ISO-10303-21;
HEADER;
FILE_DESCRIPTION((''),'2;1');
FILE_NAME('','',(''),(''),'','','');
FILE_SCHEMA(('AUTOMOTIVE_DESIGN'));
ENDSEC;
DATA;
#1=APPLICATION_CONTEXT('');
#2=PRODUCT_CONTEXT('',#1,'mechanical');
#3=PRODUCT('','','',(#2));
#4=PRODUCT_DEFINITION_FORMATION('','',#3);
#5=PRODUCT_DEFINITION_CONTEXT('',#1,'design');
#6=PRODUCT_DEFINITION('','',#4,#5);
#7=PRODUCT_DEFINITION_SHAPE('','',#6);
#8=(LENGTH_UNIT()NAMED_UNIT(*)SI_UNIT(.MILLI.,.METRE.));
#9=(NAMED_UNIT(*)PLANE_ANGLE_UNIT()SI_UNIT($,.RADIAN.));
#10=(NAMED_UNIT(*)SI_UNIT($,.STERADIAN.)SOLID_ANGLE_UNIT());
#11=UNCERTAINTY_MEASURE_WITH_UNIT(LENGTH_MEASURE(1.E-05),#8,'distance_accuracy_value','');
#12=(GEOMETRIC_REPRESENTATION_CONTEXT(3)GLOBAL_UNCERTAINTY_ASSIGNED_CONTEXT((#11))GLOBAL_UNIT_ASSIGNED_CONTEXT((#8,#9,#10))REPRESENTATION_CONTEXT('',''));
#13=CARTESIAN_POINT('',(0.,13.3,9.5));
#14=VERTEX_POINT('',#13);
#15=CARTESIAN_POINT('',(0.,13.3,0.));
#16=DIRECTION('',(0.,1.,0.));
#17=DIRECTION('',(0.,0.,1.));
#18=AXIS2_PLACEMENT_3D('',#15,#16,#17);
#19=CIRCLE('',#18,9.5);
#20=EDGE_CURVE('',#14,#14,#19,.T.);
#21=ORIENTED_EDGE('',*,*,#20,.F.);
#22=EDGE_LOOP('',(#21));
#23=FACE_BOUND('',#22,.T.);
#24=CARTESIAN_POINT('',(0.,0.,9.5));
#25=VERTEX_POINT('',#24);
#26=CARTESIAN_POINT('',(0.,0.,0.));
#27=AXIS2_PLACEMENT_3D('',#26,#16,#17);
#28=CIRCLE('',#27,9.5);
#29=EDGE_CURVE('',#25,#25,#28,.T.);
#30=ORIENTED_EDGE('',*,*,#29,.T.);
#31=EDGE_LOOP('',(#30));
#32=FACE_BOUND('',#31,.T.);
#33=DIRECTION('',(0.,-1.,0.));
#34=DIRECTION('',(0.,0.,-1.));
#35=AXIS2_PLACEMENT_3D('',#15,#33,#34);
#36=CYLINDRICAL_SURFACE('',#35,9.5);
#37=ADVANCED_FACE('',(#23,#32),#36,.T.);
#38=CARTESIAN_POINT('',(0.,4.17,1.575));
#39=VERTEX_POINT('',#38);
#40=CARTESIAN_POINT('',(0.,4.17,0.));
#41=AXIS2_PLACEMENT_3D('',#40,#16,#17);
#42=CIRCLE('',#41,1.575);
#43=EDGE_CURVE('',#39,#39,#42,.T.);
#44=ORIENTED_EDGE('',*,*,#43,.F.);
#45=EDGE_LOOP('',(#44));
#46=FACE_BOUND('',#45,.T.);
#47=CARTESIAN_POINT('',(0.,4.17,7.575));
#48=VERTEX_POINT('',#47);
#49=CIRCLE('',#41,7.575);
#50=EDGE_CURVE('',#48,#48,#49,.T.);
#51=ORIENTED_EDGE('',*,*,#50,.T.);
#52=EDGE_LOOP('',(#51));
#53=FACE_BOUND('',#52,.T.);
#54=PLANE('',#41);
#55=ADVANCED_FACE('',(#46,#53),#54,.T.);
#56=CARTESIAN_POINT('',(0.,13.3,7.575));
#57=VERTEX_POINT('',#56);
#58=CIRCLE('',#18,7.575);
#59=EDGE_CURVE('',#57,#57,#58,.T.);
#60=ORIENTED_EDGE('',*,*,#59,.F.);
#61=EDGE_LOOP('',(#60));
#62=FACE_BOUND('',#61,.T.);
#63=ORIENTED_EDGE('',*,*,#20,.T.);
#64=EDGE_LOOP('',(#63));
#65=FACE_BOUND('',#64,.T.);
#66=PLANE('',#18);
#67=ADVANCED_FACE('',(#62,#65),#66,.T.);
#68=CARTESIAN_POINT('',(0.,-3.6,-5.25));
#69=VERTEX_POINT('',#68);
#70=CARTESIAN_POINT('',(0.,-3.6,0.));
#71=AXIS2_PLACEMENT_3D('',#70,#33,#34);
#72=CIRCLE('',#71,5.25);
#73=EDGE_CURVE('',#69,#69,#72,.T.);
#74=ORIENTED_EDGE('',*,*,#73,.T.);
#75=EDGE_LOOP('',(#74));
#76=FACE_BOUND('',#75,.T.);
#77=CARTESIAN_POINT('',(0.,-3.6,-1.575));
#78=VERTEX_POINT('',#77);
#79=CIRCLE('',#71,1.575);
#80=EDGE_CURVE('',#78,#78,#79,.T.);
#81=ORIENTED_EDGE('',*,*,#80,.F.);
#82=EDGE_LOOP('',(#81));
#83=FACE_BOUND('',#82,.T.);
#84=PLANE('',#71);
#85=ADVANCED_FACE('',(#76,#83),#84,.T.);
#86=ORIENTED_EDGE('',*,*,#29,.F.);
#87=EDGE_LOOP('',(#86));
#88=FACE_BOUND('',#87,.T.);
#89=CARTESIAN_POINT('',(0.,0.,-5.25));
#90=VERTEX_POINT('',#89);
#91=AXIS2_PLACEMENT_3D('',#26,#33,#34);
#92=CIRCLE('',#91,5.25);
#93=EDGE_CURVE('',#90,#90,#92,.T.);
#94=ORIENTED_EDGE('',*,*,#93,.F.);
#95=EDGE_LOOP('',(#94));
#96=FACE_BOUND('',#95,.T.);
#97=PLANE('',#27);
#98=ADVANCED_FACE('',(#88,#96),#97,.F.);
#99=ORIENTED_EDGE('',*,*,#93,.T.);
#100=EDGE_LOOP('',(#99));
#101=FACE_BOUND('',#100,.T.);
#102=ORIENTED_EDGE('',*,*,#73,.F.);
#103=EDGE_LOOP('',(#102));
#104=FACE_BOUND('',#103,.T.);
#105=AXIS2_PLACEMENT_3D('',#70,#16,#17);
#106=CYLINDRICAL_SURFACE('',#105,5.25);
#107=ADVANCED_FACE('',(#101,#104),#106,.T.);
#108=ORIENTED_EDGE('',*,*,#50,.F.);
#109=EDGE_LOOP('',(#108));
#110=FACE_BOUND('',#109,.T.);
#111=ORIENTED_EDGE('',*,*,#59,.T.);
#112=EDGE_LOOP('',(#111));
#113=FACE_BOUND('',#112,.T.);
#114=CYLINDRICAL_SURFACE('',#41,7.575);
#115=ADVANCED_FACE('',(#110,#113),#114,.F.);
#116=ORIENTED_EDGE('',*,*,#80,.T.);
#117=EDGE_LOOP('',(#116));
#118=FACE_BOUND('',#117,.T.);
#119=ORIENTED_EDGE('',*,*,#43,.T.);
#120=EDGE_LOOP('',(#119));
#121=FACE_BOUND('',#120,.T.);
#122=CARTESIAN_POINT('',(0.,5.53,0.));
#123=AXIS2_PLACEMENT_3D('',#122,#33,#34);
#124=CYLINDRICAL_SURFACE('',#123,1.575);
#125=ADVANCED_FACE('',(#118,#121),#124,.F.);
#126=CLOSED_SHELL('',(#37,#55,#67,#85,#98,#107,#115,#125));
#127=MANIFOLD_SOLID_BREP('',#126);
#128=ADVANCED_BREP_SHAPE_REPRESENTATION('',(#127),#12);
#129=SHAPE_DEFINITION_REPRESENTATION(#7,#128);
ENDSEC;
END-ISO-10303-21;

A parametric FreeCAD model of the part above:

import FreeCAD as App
import Part
import Sketcher
from FreeCAD import Vector
Q = App.Units.Quantity

doc = App.newDocument("Part")
params = doc.addObject("Spreadsheet::Sheet", "Params")
for row, (alias, value) in enumerate([
    ("sketch1_diameter", "19 mm"),
    ("pad1_length", "13.3 mm"),
    ("sketch2_diameter", "10.5 mm"),
    ("pad2_length", "3.6 mm"),
    ("sketch3_diameter", "15.15 mm"),
    ("pocket1_length", "9.13 mm"),
    ("sketch4_diameter", "3.15 mm"),
    ("pocket2_length", "9.13 mm"),
], start=1):
    params.set(f"A{row}", alias)
    params.set(f"B{row}", "=" + value)
    params.setAlias(f"B{row}", alias)

body = doc.addObject("PartDesign::Body", "Body")

sketch1 = body.newObject("Sketcher::SketchObject", "Sketch")
sketch1.AttachmentSupport = (doc.getObject("XZ_Plane"), [""])
sketch1.MapMode = "FlatFace"
sketch1.addGeometry(Part.Circle(Vector(0, 0, 0), Vector(0, 0, 1), 10), False)
sketch1.addConstraint(Sketcher.Constraint("Coincident", 0, 3, -1, 1))
sketch1.addConstraint(Sketcher.Constraint("Diameter", 0, Q("19 mm")))
sketch1.setExpression("Constraints[1]", "Params.sketch1_diameter")
pad1 = body.newObject("PartDesign::Pad", "Pad")
pad1.Profile = sketch1
pad1.setExpression("Length", "Params.pad1_length")
pad1.Reversed = True

sketch2 = body.newObject("Sketcher::SketchObject", "Sketch001")
sketch2.AttachmentSupport = (doc.getObject("XZ_Plane"), [""])
sketch2.MapMode = "FlatFace"
sketch2.addGeometry(Part.Circle(Vector(0, 0, 0), Vector(0, 0, 1), 5), False)
sketch2.addConstraint(Sketcher.Constraint("Coincident", 0, 3, -1, 1))
sketch2.addConstraint(Sketcher.Constraint("Diameter", 0, Q("10.5 mm")))
sketch2.setExpression("Constraints[1]", "Params.sketch2_diameter")
pad2 = body.newObject("PartDesign::Pad", "Pad001")
pad2.Profile = sketch2
pad2.setExpression("Length", "Params.pad2_length")

sketch3 = body.newObject("Sketcher::SketchObject", "Sketch002")
sketch3.AttachmentSupport = (doc.getObject("XZ_Plane"), [""])
sketch3.MapMode = "FlatFace"
sketch3.AttachmentOffset = App.Placement(Vector(0, 0, -13.3), App.Rotation())
sketch3.addGeometry(Part.Circle(Vector(0, 0, 0), Vector(0, 0, 1), 8), False)
sketch3.addConstraint(Sketcher.Constraint("Coincident", 0, 3, -1, 1))
sketch3.addConstraint(Sketcher.Constraint("Diameter", 0, Q("15.15 mm")))
sketch3.setExpression("Constraints[1]", "Params.sketch3_diameter")
pocket1 = body.newObject("PartDesign::Pocket", "Pocket")
pocket1.Profile = sketch3
pocket1.setExpression("Length", "Params.pocket1_length")
pocket1.Reversed = True

sketch4 = body.newObject("Sketcher::SketchObject", "Sketch003")
sketch4.AttachmentSupport = (doc.getObject("XZ_Plane"), [""])
sketch4.MapMode = "FlatFace"
sketch4.AttachmentOffset = App.Placement(Vector(0, 0, 3.6), App.Rotation())
sketch4.addGeometry(Part.Circle(Vector(0, 0, 0), Vector(0, 0, 1), 1.6), False)
sketch4.addConstraint(Sketcher.Constraint("Coincident", 0, 3, -1, 1))
sketch4.addConstraint(Sketcher.Constraint("Diameter", 0, Q("3.15 mm")))
sketch4.setExpression("Constraints[1]", "Params.sketch4_diameter")
pocket2 = body.newObject("PartDesign::Pocket", "Pocket001")
pocket2.Profile = sketch4
pocket2.setExpression("Length", "Params.pocket2_length")

doc.recompute()
